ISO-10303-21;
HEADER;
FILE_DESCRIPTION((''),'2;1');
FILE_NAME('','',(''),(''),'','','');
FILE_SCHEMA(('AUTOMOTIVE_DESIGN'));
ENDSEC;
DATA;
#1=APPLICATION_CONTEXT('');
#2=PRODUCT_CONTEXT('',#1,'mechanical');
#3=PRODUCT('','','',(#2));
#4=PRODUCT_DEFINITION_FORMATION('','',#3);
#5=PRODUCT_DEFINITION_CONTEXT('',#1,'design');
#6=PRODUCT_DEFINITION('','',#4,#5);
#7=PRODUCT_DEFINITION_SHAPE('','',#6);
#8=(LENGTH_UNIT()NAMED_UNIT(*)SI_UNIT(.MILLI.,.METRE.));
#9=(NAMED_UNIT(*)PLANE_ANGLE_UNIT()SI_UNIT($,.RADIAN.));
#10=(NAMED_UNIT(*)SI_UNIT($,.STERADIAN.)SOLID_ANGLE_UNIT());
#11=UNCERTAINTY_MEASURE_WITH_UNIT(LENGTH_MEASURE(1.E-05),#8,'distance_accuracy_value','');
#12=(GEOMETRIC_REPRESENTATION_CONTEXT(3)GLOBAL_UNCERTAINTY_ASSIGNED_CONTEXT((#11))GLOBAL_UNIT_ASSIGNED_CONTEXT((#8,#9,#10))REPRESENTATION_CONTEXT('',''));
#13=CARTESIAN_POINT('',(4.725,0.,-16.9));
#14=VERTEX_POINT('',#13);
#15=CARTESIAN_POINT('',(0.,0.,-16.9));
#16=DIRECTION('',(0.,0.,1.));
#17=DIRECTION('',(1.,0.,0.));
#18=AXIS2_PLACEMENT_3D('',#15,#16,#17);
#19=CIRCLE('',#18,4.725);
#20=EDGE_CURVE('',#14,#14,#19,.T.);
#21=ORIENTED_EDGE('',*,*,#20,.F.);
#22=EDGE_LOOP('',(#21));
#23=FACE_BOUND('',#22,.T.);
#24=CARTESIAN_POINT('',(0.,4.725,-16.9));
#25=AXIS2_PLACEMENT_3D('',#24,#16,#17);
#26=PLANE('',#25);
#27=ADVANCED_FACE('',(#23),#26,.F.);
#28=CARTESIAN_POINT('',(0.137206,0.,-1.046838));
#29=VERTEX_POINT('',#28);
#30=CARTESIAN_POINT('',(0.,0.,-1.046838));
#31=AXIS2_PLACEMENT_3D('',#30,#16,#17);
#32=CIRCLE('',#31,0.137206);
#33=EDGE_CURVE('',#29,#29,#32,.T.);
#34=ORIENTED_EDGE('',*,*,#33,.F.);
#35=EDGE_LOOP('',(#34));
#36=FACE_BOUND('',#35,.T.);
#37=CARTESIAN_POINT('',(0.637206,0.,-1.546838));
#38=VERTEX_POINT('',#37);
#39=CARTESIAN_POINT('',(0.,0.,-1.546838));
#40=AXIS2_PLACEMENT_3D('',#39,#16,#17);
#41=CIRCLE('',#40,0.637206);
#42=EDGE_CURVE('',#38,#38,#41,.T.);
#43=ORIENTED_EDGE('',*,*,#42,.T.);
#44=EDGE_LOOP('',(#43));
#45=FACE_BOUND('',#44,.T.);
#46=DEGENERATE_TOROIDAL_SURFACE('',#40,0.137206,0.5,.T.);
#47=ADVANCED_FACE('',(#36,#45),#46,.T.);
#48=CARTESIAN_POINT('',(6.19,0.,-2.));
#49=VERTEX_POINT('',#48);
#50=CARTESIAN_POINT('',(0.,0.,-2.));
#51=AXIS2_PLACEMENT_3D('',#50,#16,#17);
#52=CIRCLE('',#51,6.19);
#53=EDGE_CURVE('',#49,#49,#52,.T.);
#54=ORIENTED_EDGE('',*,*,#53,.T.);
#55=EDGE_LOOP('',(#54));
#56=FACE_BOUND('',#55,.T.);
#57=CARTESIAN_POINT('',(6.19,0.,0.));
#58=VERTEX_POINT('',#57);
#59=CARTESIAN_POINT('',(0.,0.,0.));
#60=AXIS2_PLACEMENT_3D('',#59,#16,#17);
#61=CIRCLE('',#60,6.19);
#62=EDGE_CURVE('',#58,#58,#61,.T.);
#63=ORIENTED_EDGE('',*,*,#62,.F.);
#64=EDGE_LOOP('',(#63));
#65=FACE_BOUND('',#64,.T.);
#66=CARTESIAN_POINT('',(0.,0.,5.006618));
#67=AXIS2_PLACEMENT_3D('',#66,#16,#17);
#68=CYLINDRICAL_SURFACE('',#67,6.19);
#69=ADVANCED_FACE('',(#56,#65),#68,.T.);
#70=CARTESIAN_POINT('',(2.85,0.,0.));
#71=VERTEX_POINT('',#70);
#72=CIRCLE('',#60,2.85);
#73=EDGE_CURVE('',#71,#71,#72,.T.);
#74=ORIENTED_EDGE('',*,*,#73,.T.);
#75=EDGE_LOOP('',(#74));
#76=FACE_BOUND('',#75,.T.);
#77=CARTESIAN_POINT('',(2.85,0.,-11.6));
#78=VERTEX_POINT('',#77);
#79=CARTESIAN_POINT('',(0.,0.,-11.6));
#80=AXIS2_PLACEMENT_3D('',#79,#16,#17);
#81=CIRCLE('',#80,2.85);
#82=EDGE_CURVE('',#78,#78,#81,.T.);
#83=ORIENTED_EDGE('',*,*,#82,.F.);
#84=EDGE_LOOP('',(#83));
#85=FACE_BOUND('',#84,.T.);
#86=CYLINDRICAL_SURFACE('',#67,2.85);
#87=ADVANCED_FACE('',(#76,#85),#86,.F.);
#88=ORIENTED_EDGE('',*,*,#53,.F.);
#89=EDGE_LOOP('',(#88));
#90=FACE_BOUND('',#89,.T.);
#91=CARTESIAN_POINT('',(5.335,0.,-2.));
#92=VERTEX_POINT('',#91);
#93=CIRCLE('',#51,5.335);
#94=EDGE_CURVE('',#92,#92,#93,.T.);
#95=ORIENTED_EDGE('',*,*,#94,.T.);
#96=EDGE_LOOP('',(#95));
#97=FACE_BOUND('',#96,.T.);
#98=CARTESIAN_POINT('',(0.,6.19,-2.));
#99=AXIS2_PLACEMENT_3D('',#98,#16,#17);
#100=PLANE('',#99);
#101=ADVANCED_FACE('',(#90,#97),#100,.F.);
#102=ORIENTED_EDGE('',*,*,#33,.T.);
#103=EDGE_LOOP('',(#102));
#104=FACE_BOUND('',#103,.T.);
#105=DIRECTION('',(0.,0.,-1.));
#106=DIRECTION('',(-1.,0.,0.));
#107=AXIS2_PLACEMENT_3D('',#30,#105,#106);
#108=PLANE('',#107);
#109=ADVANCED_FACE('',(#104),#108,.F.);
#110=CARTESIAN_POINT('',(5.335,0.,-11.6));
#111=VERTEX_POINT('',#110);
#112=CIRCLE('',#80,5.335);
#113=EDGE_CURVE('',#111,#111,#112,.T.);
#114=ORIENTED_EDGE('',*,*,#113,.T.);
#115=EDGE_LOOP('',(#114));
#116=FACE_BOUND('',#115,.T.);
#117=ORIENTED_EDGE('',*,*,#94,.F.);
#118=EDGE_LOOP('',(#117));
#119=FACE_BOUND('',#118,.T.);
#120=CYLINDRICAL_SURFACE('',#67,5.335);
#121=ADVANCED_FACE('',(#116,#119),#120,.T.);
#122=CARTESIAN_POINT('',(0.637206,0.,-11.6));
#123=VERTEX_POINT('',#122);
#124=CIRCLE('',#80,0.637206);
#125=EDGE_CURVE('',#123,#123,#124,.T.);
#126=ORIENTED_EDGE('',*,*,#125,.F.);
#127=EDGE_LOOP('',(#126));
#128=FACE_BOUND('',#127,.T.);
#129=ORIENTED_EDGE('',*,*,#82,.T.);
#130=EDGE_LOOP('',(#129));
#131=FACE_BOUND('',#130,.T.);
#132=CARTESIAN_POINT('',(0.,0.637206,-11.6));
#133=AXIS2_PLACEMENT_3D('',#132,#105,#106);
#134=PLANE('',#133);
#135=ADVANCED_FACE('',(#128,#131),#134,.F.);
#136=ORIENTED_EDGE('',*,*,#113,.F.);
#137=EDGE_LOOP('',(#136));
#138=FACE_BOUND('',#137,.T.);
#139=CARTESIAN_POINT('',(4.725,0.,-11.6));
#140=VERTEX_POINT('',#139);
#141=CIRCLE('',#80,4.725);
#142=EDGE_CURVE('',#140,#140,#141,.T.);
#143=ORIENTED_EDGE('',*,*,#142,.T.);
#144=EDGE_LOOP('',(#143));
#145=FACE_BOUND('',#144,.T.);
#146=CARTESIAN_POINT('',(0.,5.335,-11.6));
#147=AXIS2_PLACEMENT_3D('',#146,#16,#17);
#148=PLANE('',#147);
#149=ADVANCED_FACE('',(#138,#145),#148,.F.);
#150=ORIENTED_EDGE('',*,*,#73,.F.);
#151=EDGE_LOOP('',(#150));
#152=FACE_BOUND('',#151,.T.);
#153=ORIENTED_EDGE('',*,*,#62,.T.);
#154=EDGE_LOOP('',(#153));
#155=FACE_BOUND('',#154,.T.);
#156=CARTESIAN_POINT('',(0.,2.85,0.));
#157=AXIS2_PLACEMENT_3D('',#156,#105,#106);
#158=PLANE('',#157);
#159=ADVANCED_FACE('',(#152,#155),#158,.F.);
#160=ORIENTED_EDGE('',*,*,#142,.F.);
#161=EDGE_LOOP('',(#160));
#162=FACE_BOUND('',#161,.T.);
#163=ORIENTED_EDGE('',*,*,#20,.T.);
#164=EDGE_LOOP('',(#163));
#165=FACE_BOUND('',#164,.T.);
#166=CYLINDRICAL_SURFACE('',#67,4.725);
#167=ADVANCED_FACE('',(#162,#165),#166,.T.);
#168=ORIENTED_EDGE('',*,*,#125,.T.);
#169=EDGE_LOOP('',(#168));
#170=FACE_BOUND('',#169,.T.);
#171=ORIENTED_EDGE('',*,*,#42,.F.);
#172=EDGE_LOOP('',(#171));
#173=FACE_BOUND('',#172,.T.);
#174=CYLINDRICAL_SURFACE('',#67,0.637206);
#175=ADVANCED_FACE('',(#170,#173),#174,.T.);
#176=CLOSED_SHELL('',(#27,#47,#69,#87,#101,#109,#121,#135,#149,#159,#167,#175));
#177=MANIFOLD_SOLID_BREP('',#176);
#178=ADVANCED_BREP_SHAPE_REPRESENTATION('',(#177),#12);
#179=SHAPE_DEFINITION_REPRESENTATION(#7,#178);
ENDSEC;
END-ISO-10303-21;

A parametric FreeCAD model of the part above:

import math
import FreeCAD as App
import Part
import Sketcher

doc = App.newDocument("Part")
body = doc.addObject("PartDesign::Body", "Body")

sketch1 = doc.addObject("Sketcher::SketchObject", "Sketch")
body.addObject(sketch1)
sketch1.AttachmentSupport = (doc.YZ_Plane, [""])
sketch1.MapMode = "FlatFace"
sketch1.addGeometry(Part.LineSegment(App.Vector(6.19, 0, 0), App.Vector(2.85, 0, 0)), False)
sketch1.addGeometry(Part.LineSegment(App.Vector(2.85, 0, 0), App.Vector(2.85, -11.6, 0)), False)
sketch1.addGeometry(Part.LineSegment(App.Vector(2.85, -11.6, 0), App.Vector(0.64, -11.6, 0)), False)
sketch1.addGeometry(Part.LineSegment(App.Vector(0.64, -11.6, 0), App.Vector(0.64, -1.55, 0)), False)
sketch1.addGeometry(Part.ArcOfCircle(Part.Circle(App.Vector(0.14, -1.55, 0), App.Vector(0, 0, 1), 0.5), math.radians(0), math.radians(90)), False)
sketch1.addGeometry(Part.LineSegment(App.Vector(0.14, -1.05, 0), App.Vector(0, -1.05, 0)), False)
sketch1.addGeometry(Part.LineSegment(App.Vector(0, -1.05, 0), App.Vector(0, -16.9, 0)), False)
sketch1.addGeometry(Part.LineSegment(App.Vector(0, -16.9, 0), App.Vector(4.72, -16.9, 0)), False)
sketch1.addGeometry(Part.LineSegment(App.Vector(4.72, -16.9, 0), App.Vector(4.72, -11.6, 0)), False)
sketch1.addGeometry(Part.LineSegment(App.Vector(4.72, -11.6, 0), App.Vector(5.33, -11.6, 0)), False)
sketch1.addGeometry(Part.LineSegment(App.Vector(5.33, -11.6, 0), App.Vector(5.33, -2, 0)), False)
sketch1.addGeometry(Part.LineSegment(App.Vector(5.33, -2, 0), App.Vector(6.19, -2, 0)), False)
sketch1.addGeometry(Part.LineSegment(App.Vector(6.19, -2, 0), App.Vector(6.19, 0, 0)), False)
sketch1.addConstraint(Sketcher.Constraint("Coincident", 0, 2, 1, 1))
sketch1.addConstraint(Sketcher.Constraint("Coincident", 1, 2, 2, 1))
sketch1.addConstraint(Sketcher.Constraint("Coincident", 2, 2, 3, 1))
sketch1.addConstraint(Sketcher.Constraint("Tangent", 3, 2, 4, 1))
sketch1.addConstraint(Sketcher.Constraint("Tangent", 4, 2, 5, 1))
sketch1.addConstraint(Sketcher.Constraint("Coincident", 5, 2, 6, 1))
sketch1.addConstraint(Sketcher.Constraint("Coincident", 6, 2, 7, 1))
sketch1.addConstraint(Sketcher.Constraint("Coincident", 7, 2, 8, 1))
sketch1.addConstraint(Sketcher.Constraint("Coincident", 8, 2, 9, 1))
sketch1.addConstraint(Sketcher.Constraint("Coincident", 9, 2, 10, 1))
sketch1.addConstraint(Sketcher.Constraint("Coincident", 10, 2, 11, 1))
sketch1.addConstraint(Sketcher.Constraint("Coincident", 11, 2, 12, 1))
sketch1.addConstraint(Sketcher.Constraint("Coincident", 12, 2, 0, 1))
sketch1.addConstraint(Sketcher.Constraint("Horizontal", 0))
sketch1.addConstraint(Sketcher.Constraint("Vertical", 1))
sketch1.addConstraint(Sketcher.Constraint("Horizontal", 2))
sketch1.addConstraint(Sketcher.Constraint("Vertical", 3))
sketch1.addConstraint(Sketcher.Constraint("Horizontal", 5))
sketch1.addConstraint(Sketcher.Constraint("Vertical", 6))
sketch1.addConstraint(Sketcher.Constraint("Horizontal", 7))
sketch1.addConstraint(Sketcher.Constraint("Vertical", 8))
sketch1.addConstraint(Sketcher.Constraint("Horizontal", 9))
sketch1.addConstraint(Sketcher.Constraint("Vertical", 10))
sketch1.addConstraint(Sketcher.Constraint("Horizontal", 11))
sketch1.addConstraint(Sketcher.Constraint("Vertical", 12))
sketch1.addConstraint(Sketcher.Constraint("PointOnObject", 0, 2, -1))
sketch1.addConstraint(Sketcher.Constraint("PointOnObject", 5, 2, -2))
sketch1.addConstraint(Sketcher.Constraint("Horizontal", 2, 2, 8, 2))
sketch1.addConstraint(Sketcher.Constraint("Radius", 4, 0.5))
sketch1.addConstraint(Sketcher.Constraint("DistanceY", 12, 1, 12, 2, 2.0))
sketch1.addConstraint(Sketcher.Constraint("DistanceY", 1, 2, 1, 1, 11.6))
sketch1.addConstraint(Sketcher.Constraint("DistanceY", 8, 1, 8, 2, 5.3))
sketch1.addConstraint(Sketcher.Constraint("DistanceX", 0, 2, 0, 1, 3.34))
sketch1.addConstraint(Sketcher.Constraint("DistanceX", 9, 1, 9, 2, 0.61))
sketch1.addConstraint(Sketcher.Constraint("DistanceX", 7, 1, 7, 2, 4.725))
sketch1.addConstraint(Sketcher.Constraint("DistanceX", 11, 1, 11, 2, 0.855))
sketch1.addConstraint(Sketcher.Constraint("DistanceY", 3, 1, 3, 2, 10.053162))
sketch1.addConstraint(Sketcher.Constraint("DistanceX", 2, 2, 2, 1, 2.212794))
revolution = doc.addObject("PartDesign::Revolution", "Revolution")
body.addObject(revolution)
revolution.Profile = sketch1
revolution.ReferenceAxis = (sketch1, ["V_Axis"])
revolution.Angle = 360

doc.recompute()
